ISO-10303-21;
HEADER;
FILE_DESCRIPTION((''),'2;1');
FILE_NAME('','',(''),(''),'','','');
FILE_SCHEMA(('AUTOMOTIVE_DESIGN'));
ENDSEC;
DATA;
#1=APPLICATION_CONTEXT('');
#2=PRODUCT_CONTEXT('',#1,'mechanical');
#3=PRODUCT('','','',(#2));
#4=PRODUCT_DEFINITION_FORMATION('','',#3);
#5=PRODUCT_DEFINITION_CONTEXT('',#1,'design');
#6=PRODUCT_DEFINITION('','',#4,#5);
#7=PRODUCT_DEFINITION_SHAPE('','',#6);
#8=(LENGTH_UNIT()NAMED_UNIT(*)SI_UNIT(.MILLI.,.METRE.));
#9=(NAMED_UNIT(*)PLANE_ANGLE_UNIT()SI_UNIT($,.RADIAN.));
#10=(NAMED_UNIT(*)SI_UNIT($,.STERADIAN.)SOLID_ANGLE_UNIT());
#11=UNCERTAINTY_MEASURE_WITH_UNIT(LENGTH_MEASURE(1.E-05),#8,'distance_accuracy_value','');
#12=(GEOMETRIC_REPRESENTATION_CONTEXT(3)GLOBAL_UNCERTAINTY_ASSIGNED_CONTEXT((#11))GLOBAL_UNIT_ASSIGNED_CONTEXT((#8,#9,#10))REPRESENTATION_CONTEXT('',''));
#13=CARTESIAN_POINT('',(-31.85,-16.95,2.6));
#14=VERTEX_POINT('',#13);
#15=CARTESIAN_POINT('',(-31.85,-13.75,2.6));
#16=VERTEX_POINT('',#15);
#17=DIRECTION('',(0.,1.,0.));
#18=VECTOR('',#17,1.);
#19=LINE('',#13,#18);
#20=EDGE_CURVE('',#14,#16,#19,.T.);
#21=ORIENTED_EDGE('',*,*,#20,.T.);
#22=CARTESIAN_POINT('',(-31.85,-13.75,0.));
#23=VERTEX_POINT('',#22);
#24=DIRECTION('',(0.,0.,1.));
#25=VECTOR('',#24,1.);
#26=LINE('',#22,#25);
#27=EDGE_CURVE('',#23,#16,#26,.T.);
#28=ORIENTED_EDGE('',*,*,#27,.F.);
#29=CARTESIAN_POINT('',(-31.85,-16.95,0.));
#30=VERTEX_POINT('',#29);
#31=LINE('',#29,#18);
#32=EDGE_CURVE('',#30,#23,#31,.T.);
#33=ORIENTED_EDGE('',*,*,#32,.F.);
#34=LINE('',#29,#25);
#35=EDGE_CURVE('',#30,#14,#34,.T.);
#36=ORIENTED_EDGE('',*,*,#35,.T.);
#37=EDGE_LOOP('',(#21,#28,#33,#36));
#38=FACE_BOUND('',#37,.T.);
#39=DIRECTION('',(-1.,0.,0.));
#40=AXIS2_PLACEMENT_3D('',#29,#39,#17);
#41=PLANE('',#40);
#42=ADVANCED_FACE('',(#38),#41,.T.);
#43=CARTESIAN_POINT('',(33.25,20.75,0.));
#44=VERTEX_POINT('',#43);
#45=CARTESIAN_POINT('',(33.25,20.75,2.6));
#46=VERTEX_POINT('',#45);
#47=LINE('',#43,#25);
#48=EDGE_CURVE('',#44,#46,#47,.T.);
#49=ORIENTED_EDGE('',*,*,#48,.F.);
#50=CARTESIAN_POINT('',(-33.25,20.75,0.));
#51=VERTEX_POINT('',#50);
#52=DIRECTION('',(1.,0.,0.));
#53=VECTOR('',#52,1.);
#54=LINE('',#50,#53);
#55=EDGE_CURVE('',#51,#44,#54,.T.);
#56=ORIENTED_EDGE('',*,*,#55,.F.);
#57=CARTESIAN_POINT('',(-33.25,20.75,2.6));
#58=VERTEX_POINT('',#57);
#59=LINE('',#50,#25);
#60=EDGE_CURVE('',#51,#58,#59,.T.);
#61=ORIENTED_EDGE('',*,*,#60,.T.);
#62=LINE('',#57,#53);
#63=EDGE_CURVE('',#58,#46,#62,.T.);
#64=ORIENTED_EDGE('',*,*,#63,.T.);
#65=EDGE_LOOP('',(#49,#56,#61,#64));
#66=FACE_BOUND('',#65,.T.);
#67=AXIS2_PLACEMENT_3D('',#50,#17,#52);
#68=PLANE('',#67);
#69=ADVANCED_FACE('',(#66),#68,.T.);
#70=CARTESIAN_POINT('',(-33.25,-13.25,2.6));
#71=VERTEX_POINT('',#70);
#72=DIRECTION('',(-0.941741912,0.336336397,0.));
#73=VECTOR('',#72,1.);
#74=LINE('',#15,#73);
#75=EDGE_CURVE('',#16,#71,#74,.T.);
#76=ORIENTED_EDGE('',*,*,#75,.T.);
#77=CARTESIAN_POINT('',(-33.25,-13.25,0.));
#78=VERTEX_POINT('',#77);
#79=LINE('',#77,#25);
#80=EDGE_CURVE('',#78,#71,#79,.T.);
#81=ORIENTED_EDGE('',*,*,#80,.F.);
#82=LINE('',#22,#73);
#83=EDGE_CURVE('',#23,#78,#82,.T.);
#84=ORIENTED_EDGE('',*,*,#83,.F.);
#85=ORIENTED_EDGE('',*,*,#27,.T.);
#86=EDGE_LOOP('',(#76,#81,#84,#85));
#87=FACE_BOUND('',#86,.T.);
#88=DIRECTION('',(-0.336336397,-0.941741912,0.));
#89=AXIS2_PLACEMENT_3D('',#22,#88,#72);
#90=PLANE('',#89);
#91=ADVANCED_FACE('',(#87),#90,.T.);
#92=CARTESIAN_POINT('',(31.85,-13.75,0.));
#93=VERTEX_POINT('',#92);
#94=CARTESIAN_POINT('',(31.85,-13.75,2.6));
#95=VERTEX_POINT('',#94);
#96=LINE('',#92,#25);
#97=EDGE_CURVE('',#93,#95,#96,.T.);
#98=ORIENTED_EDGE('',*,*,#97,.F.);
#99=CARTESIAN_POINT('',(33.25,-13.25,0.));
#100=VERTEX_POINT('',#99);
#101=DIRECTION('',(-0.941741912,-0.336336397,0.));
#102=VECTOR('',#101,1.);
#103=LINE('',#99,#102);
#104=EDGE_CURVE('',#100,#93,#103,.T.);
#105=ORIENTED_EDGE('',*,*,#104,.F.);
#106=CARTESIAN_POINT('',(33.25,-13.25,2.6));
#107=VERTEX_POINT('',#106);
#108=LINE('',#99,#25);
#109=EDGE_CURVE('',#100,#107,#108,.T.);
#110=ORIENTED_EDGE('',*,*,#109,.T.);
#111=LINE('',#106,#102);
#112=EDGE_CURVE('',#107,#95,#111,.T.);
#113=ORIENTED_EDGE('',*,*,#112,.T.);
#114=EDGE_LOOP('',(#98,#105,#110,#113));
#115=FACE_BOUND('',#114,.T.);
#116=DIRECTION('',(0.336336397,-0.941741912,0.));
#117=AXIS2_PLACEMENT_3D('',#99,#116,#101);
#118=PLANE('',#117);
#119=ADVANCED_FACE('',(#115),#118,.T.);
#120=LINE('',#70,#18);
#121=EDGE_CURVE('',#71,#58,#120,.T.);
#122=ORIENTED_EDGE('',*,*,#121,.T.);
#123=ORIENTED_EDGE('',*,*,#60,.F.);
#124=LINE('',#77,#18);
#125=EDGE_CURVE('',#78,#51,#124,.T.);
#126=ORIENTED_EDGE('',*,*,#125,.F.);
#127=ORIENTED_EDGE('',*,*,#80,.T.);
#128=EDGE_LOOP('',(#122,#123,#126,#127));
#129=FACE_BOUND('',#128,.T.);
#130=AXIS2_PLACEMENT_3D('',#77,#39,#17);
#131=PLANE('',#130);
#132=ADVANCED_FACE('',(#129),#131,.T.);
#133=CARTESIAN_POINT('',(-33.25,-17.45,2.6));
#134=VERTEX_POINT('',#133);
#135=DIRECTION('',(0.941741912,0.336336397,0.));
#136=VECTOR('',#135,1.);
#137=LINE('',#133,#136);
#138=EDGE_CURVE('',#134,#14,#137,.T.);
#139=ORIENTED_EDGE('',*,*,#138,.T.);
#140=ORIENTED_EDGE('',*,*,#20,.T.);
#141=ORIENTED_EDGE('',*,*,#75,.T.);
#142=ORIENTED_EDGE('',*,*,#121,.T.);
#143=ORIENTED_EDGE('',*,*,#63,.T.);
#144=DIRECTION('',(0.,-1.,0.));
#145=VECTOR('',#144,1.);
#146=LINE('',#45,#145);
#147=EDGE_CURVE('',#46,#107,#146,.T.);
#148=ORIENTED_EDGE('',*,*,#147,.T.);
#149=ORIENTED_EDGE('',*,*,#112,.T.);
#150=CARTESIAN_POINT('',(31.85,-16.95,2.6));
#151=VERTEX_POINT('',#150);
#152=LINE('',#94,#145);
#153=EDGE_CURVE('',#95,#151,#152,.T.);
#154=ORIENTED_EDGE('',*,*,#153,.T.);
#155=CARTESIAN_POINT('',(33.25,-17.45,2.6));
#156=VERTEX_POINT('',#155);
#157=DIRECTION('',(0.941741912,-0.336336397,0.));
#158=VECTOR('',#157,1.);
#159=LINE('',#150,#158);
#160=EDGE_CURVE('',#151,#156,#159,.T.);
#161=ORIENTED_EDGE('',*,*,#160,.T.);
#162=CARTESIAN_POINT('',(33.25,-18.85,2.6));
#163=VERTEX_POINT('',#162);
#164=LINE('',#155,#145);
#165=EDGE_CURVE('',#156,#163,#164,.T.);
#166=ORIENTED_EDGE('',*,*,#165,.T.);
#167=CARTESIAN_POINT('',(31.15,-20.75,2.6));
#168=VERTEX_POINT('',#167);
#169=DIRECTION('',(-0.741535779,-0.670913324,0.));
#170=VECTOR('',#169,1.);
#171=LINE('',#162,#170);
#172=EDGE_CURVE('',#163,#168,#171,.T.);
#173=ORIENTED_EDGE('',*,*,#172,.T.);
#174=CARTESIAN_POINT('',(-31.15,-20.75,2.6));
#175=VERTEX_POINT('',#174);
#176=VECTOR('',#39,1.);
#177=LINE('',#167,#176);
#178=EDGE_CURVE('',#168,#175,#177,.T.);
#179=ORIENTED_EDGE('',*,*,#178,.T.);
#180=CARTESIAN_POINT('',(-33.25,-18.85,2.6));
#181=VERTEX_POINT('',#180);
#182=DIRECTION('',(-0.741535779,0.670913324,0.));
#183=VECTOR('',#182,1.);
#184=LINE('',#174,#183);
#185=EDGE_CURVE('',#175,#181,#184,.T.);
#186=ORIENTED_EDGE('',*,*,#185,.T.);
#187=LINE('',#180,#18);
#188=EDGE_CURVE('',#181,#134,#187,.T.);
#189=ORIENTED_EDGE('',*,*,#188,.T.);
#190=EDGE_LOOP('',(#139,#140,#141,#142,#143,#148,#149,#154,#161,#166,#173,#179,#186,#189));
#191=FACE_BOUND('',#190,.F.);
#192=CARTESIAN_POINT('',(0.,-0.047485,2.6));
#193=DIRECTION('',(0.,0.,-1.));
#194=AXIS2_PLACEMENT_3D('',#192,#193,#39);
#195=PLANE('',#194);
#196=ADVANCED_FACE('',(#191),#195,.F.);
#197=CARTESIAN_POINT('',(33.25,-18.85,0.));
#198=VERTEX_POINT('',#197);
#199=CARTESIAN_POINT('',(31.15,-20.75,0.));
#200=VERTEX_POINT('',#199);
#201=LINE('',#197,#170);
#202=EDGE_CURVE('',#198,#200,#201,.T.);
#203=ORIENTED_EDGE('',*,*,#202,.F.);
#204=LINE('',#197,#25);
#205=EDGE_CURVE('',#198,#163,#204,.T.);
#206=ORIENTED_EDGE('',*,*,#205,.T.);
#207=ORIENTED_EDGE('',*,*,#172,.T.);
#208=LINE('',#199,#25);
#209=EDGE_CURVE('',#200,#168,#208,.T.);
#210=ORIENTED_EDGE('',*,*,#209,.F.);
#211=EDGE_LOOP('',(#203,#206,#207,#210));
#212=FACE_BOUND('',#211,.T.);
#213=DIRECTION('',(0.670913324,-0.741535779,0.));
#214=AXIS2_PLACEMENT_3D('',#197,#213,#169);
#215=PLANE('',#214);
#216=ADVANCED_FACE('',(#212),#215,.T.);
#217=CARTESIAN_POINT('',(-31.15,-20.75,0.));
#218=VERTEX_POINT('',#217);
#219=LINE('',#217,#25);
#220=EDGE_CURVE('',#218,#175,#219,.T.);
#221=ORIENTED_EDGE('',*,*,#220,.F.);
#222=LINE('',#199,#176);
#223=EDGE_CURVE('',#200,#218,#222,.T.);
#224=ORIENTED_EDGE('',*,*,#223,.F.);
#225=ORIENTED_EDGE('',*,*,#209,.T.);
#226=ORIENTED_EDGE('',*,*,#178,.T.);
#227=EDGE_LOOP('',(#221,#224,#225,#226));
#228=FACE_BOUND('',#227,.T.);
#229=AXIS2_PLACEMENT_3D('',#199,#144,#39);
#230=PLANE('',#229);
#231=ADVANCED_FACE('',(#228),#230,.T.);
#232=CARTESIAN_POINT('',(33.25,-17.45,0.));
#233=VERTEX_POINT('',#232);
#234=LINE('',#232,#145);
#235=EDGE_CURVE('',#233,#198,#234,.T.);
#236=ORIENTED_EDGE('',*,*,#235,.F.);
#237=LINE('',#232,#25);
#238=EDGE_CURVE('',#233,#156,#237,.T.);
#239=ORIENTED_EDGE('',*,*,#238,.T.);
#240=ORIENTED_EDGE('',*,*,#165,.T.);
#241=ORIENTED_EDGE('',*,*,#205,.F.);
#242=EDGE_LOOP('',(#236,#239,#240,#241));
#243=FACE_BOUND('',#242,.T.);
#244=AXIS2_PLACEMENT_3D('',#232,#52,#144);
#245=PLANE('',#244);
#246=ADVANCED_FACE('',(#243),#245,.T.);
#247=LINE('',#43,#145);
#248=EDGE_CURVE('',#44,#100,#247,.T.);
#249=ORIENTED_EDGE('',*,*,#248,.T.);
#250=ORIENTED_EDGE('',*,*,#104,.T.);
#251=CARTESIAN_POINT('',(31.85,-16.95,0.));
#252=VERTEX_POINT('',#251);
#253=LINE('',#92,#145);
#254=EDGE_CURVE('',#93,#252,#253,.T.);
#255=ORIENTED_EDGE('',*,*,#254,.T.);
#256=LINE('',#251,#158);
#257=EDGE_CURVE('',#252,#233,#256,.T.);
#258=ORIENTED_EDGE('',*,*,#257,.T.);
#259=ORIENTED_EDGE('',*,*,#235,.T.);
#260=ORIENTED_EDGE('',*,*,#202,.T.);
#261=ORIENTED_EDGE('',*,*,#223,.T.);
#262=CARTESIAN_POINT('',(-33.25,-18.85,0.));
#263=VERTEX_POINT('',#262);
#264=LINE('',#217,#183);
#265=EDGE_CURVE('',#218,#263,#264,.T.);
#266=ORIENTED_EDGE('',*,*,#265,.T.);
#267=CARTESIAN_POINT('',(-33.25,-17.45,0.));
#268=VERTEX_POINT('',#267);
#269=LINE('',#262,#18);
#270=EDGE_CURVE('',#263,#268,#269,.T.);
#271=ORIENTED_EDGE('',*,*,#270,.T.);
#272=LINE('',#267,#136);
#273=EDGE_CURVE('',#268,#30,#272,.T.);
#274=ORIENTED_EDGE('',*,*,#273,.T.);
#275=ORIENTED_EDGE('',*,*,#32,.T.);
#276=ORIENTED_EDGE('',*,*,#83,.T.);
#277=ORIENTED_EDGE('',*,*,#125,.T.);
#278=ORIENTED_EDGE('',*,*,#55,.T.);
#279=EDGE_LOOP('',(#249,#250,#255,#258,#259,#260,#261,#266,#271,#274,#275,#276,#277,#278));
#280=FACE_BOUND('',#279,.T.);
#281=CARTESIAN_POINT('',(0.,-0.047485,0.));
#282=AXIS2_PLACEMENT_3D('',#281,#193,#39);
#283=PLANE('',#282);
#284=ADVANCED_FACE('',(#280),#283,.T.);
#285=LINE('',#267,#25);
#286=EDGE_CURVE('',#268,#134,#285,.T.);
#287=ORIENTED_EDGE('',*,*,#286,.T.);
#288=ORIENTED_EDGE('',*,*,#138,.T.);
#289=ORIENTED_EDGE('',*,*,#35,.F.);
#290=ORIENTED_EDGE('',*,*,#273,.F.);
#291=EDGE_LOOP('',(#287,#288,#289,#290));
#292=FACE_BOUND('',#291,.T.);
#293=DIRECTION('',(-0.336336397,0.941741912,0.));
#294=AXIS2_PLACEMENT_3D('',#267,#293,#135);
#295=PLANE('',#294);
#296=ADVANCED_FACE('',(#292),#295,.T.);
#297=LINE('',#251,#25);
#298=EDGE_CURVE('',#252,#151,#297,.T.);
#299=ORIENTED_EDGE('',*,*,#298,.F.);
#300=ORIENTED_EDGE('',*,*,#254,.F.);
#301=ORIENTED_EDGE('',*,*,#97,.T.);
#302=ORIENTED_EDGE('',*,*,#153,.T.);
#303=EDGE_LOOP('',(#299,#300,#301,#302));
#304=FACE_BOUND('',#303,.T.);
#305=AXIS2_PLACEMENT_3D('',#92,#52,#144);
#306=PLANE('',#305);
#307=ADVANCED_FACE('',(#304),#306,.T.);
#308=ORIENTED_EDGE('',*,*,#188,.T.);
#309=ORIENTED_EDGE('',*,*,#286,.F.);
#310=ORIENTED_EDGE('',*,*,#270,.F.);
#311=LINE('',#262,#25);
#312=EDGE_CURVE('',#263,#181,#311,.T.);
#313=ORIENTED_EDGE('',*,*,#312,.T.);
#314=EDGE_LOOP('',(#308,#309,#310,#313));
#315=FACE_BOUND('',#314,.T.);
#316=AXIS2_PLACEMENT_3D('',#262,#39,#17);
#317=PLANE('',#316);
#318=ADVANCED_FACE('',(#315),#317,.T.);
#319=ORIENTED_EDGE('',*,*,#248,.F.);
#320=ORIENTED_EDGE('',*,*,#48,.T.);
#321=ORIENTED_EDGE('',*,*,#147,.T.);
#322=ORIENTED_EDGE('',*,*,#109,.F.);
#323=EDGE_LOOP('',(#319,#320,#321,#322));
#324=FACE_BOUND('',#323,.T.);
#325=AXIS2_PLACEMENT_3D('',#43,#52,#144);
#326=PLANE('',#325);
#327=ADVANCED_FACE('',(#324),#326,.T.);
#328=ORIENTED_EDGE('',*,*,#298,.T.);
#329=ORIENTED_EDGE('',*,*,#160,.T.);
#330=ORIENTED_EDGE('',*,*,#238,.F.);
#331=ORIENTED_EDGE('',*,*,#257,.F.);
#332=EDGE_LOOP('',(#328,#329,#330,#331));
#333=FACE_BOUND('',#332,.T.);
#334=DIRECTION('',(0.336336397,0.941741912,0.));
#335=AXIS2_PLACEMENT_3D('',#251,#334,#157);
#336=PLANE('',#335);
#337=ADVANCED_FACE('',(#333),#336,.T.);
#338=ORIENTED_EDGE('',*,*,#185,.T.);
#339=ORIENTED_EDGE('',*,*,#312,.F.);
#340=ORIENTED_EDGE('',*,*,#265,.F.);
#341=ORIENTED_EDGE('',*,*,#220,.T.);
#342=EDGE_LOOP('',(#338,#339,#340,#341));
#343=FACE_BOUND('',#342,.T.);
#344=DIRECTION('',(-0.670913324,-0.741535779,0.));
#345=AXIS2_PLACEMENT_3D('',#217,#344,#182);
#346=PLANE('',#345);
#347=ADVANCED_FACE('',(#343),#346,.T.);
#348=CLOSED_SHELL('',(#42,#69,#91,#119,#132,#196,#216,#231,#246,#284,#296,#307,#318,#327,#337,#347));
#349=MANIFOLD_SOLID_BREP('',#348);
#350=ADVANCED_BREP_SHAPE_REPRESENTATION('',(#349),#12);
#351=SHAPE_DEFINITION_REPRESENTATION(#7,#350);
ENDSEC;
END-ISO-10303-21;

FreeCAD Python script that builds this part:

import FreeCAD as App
import Part
import Sketcher
from FreeCAD import Vector

doc = App.newDocument("Part")
body = doc.addObject("PartDesign::Body", "Body")

# Sketch on XY plane
sketch1 = body.newObject("Sketcher::SketchObject", "Sketch")
sketch1.AttachmentSupport = (doc.getObject("XY_Plane"), [""])
sketch1.MapMode = "FlatFace"
sketch1.addGeometry([
    Part.LineSegment(Vector(33.25, 20.75, 0), Vector(-33.25, 20.75, 0)),  # 0
    Part.LineSegment(Vector(-33.25, 20.75, 0), Vector(-33.25, -13.25, 0)),  # 1
    Part.LineSegment(Vector(-33.25, -13.25, 0), Vector(-31.85, -13.75, 0)),  # 2
    Part.LineSegment(Vector(-31.85, -13.75, 0), Vector(-31.85, -16.95, 0)),  # 3
    Part.LineSegment(Vector(-31.85, -16.95, 0), Vector(-33.25, -17.45, 0)),  # 4
    Part.LineSegment(Vector(-33.25, -17.45, 0), Vector(-33.25, -18.85, 0)),  # 5
    Part.LineSegment(Vector(-33.25, -18.85, 0), Vector(-31.15, -20.75, 0)),  # 6
    Part.LineSegment(Vector(-31.15, -20.75, 0), Vector(31.15, -20.75, 0)),  # 7
    Part.LineSegment(Vector(31.15, -20.75, 0), Vector(33.25, -18.85, 0)),  # 8
    Part.LineSegment(Vector(33.25, -18.85, 0), Vector(33.25, -17.45, 0)),  # 9
    Part.LineSegment(Vector(33.25, -17.45, 0), Vector(31.85, -16.95, 0)),  # 10
    Part.LineSegment(Vector(31.85, -16.95, 0), Vector(31.85, -13.75, 0)),  # 11
    Part.LineSegment(Vector(31.85, -13.75, 0), Vector(33.25, -13.25, 0)),  # 12
    Part.LineSegment(Vector(33.25, -13.25, 0), Vector(33.25, 20.75, 0)),  # 13
], False)
sketch1.addConstraint([
    Sketcher.Constraint("Coincident", 0, 2, 1, 1),
    Sketcher.Constraint("Coincident", 1, 2, 2, 1),
    Sketcher.Constraint("Coincident", 2, 2, 3, 1),
    Sketcher.Constraint("Coincident", 3, 2, 4, 1),
    Sketcher.Constraint("Coincident", 4, 2, 5, 1),
    Sketcher.Constraint("Coincident", 5, 2, 6, 1),
    Sketcher.Constraint("Coincident", 6, 2, 7, 1),
    Sketcher.Constraint("Coincident", 7, 2, 8, 1),
    Sketcher.Constraint("Coincident", 8, 2, 9, 1),
    Sketcher.Constraint("Coincident", 9, 2, 10, 1),
    Sketcher.Constraint("Coincident", 10, 2, 11, 1),
    Sketcher.Constraint("Coincident", 11, 2, 12, 1),
    Sketcher.Constraint("Coincident", 12, 2, 13, 1),
    Sketcher.Constraint("Coincident", 13, 2, 0, 1),
    Sketcher.Constraint("Horizontal", 0),
    Sketcher.Constraint("Vertical", 1),
    Sketcher.Constraint("Vertical", 3),
    Sketcher.Constraint("Vertical", 5),
    Sketcher.Constraint("Horizontal", 7),
    Sketcher.Constraint("Vertical", 9),
    Sketcher.Constraint("Vertical", 11),
    Sketcher.Constraint("Vertical", 13),
    Sketcher.Constraint("Symmetric", 5, 2, 8, 2, -2),
    Sketcher.Constraint("Symmetric", 3, 2, 10, 2, -2),
    Sketcher.Constraint("Symmetric", 1, 2, 12, 2, -2),
    Sketcher.Constraint("Parallel", 2, 10),
    Sketcher.Constraint("Parallel", 4, 12),
    Sketcher.Constraint("Horizontal", 4, 2, 9, 2),
    Sketcher.Constraint("Vertical", 1, 2, 4, 2),
    Sketcher.Constraint("Equal", 6, 8),
    Sketcher.Constraint("DistanceY", 1, 2, 1, 1, 34.0),
    Sketcher.Constraint("DistanceX", 0, 2, 0, 1, 66.5),
    Sketcher.Constraint("DistanceX", 7, 1, 7, 2, 62.3),
    Sketcher.Constraint("DistanceY", 3, 2, 3, 1, 3.2),
    Sketcher.Constraint("DistanceY", 5, 2, 5, 1, 1.4),
    Sketcher.Constraint("DistanceY", 6, 2, 2, 2, 7.0),
    Sketcher.Constraint("DistanceX", 3, 2, 7, 2, 63.0),
    Sketcher.Constraint("DistanceY", 2, 2, 1, 2, 0.5),
    Sketcher.Constraint("DistanceY", -1, 1, 0, 2, 20.75),
])
pad1 = body.newObject("PartDesign::Pad", "Pad")
pad1.Profile = sketch1
pad1.Length = 2.6

doc.recompute()
